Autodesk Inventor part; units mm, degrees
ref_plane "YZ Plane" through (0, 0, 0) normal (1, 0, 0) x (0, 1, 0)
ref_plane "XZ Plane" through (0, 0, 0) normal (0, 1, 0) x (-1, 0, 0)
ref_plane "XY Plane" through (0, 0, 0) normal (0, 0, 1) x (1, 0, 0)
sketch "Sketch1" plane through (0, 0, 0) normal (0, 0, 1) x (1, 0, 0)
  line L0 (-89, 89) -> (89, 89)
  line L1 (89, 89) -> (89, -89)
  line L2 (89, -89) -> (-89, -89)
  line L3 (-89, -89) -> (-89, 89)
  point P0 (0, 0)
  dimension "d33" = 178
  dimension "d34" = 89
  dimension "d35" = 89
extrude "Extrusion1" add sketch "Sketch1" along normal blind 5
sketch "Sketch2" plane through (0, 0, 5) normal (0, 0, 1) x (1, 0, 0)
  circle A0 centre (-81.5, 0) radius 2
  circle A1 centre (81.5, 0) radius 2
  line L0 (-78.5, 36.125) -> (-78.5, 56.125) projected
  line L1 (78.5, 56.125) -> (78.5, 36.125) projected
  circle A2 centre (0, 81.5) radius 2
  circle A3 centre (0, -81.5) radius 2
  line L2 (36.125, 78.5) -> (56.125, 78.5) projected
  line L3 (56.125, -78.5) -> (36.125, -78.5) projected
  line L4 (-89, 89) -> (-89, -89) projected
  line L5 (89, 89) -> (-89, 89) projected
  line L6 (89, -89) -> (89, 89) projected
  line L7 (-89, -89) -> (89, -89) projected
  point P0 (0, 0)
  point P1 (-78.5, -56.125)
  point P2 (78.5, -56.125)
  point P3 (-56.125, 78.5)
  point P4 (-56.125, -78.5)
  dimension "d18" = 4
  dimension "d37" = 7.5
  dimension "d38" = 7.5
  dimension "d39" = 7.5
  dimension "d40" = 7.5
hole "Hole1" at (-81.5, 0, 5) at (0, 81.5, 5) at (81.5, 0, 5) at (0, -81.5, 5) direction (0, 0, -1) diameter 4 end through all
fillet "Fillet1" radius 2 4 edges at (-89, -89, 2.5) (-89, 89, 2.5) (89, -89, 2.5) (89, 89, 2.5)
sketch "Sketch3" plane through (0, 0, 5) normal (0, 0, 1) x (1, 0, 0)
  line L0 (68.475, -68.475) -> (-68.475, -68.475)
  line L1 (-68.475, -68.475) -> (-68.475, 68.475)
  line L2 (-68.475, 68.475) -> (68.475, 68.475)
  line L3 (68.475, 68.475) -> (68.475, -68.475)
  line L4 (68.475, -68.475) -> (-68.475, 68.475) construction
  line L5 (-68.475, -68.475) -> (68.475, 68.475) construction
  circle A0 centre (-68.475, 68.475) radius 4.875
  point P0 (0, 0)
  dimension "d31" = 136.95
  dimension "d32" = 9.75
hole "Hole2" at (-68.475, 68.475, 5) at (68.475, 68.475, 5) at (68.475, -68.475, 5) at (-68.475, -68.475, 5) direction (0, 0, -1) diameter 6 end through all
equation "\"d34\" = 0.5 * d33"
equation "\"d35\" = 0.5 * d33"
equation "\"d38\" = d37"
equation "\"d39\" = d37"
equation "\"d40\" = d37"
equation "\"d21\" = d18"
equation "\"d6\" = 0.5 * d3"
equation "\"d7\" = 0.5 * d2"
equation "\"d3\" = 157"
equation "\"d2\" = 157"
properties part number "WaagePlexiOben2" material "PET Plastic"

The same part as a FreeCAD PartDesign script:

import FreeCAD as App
import Part
import Sketcher

V = App.Vector


def edges_at(feature, points):
    """Names of the edges that pass closest to the given points."""
    edges = feature.Shape.Edges
    near = lambda p: min(range(len(edges)), key=lambda i: edges[i].distToShape(Part.Vertex(*p))[0])
    return sorted({f"Edge{near(p) + 1}" for p in points})


def add_polygon(sketch, points):
    """Adds a closed chain of lines whose ends are joined by coincident constraints."""
    first, n = sketch.GeometryCount, len(points)
    for a, b in zip(points, points[1:] + points[:1]):
        sketch.addGeometry(Part.LineSegment(App.Vector(*a, 0), App.Vector(*b, 0)), False)
    for i in range(n):
        sketch.addConstraint(Sketcher.Constraint("Coincident", first + i, 2, first + (i + 1) % n, 1))

doc = App.newDocument("Part")
body = doc.addObject("PartDesign::Body", "Body")

# Sketch on XY plane
sketch1 = body.newObject("Sketcher::SketchObject", "Sketch")
sketch1.AttachmentSupport = (doc.getObject("XY_Plane"), [""])
sketch1.MapMode = "FlatFace"
add_polygon(sketch1, [(89, 89), (-89, 89), (-89, -89), (89, -89)])  # lines 0-3
sketch1.addConstraint(Sketcher.Constraint("Horizontal", 0))
sketch1.addConstraint(Sketcher.Constraint("Vertical", 1))
sketch1.addConstraint(Sketcher.Constraint("Horizontal", 2))
sketch1.addConstraint(Sketcher.Constraint("Vertical", 3))
sketch1.addConstraint(Sketcher.Constraint("Symmetric", 0, 2, 2, 2, -1, 1))
sketch1.addConstraint(Sketcher.Constraint("Equal", 2, 1))
sketch1.addConstraint(Sketcher.Constraint("DistanceX", 0, 2, 0, 1, 178.0))
pad1 = body.newObject("PartDesign::Pad", "Pad")
pad1.Profile = sketch1
pad1.Length = 5

# Sketch on XY plane
sketch2 = body.newObject("Sketcher::SketchObject", "Sketch001")
sketch2.AttachmentSupport = (doc.getObject("XY_Plane"), [""])
sketch2.MapMode = "FlatFace"
sketch2.AttachmentOffset = App.Placement(V(0, 0, 5), App.Rotation())
sketch2.addGeometry(Part.Circle(V(-81.5, 0, 0), V(0, 0, 1), 2), False)
sketch2.addGeometry(Part.Circle(V(0, 81.5, 0), V(0, 0, 1), 2), False)
sketch2.addGeometry(Part.Circle(V(81.5, 0, 0), V(0, 0, 1), 2), False)
sketch2.addGeometry(Part.Circle(V(0, -81.5, 0), V(0, 0, 1), 2), False)
sketch2.addConstraint(Sketcher.Constraint("Equal", 0, 1))
sketch2.addConstraint(Sketcher.Constraint("Equal", 1, 2))
sketch2.addConstraint(Sketcher.Constraint("Equal", 2, 3))
sketch2.addConstraint(Sketcher.Constraint("Symmetric", 0, 3, 2, 3, -1, 1))
sketch2.addConstraint(Sketcher.Constraint("Symmetric", 1, 3, 3, 3, -1, 1))
sketch2.addConstraint(Sketcher.Constraint("PointOnObject", 0, 3, -1))
sketch2.addConstraint(Sketcher.Constraint("PointOnObject", 1, 3, -2))
sketch2.addConstraint(Sketcher.Constraint("Diameter", 0, 4.0))
sketch2.addConstraint(Sketcher.Constraint("DistanceX", 0, 3, 2, 3, 163.0))
sketch2.addConstraint(Sketcher.Constraint("DistanceY", 3, 3, 1, 3, 163.0))
doc.recompute()
hole = body.newObject("PartDesign::Hole", "Hole")
hole.Profile = sketch2
hole.ThreadType = "None"
hole.Diameter = 4
hole.DepthType = "ThroughAll"
doc.recompute()

fillet = body.newObject("PartDesign::Fillet", "Fillet")
fillet.Base = (hole, edges_at(hole, [
    (-89, -89, 2.5),
    (-89, 89, 2.5),
    (89, -89, 2.5),
    (89, 89, 2.5),
]))
fillet.Radius = 2

# Sketch on XY plane
sketch3 = body.newObject("Sketcher::SketchObject", "Sketch002")
sketch3.AttachmentSupport = (doc.getObject("XY_Plane"), [""])
sketch3.MapMode = "FlatFace"
sketch3.AttachmentOffset = App.Placement(V(0, 0, 5), App.Rotation())
sketch3.addGeometry(Part.Circle(V(-68.475, 68.475, 0), V(0, 0, 1), 3), False)
sketch3.addGeometry(Part.Circle(V(68.475, 68.475, 0), V(0, 0, 1), 3), False)
sketch3.addGeometry(Part.Circle(V(68.475, -68.475, 0), V(0, 0, 1), 3), False)
sketch3.addGeometry(Part.Circle(V(-68.475, -68.475, 0), V(0, 0, 1), 3), False)
sketch3.addConstraint(Sketcher.Constraint("Equal", 0, 1))
sketch3.addConstraint(Sketcher.Constraint("Equal", 1, 2))
sketch3.addConstraint(Sketcher.Constraint("Equal", 2, 3))
sketch3.addConstraint(Sketcher.Constraint("Symmetric", 0, 3, 2, 3, -1, 1))
sketch3.addConstraint(Sketcher.Constraint("Symmetric", 1, 3, 3, 3, -1, 1))
sketch3.addConstraint(Sketcher.Constraint("Symmetric", 0, 3, 1, 3, -2))
sketch3.addConstraint(Sketcher.Constraint("Diameter", 0, 6.0))
sketch3.addConstraint(Sketcher.Constraint("DistanceX", 0, 3, 1, 3, 136.95))
sketch3.addConstraint(Sketcher.Constraint("DistanceY", 2, 3, 1, 3, 136.95))
doc.recompute()
hole2 = body.newObject("PartDesign::Hole", "Hole001")
hole2.Profile = sketch3
hole2.ThreadType = "None"
hole2.Diameter = 6
hole2.DepthType = "ThroughAll"

doc.recompute()
